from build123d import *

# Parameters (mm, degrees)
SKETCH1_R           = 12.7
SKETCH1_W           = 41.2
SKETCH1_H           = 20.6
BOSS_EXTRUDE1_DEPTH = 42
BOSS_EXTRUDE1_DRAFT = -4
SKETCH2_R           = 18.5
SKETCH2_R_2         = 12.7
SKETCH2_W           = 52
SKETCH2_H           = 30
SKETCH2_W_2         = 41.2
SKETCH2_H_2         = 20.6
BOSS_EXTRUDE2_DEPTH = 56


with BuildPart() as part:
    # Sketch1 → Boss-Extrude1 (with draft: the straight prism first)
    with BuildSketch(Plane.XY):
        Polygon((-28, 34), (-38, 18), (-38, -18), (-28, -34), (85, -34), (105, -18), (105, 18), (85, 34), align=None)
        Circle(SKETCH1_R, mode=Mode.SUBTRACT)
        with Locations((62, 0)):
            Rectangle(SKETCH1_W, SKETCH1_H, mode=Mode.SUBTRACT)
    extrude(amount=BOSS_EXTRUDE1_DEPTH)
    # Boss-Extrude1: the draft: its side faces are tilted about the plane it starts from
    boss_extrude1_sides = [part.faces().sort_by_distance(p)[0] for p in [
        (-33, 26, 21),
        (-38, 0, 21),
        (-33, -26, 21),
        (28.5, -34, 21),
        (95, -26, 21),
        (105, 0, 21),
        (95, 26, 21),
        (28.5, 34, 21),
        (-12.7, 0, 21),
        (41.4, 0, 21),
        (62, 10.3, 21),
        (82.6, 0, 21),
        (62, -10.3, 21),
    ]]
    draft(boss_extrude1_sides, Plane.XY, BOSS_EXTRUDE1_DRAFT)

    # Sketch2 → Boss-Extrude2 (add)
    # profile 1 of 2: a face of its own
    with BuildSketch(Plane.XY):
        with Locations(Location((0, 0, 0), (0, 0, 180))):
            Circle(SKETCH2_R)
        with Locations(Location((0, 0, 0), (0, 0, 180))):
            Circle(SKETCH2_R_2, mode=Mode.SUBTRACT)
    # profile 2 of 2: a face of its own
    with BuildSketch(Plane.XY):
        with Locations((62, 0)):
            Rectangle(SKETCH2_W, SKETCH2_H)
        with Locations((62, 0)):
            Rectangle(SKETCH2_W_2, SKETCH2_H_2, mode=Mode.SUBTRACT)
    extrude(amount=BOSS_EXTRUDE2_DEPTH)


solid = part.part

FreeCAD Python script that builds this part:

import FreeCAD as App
import Part
import Sketcher

V = App.Vector
Q = App.Units.Quantity


def faces_at(feature, points):
    """Names of the faces that lie closest to the given points."""
    faces = feature.Shape.Faces
    near = lambda p: min(range(len(faces)), key=lambda i: faces[i].distToShape(Part.Vertex(*p))[0])
    return sorted({f"Face{near(p) + 1}" for p in points})


def add_polygon(sketch, points):
    """Adds a closed chain of lines whose ends are joined by coincident constraints."""
    first, n = sketch.GeometryCount, len(points)
    for a, b in zip(points, points[1:] + points[:1]):
        sketch.addGeometry(Part.LineSegment(App.Vector(*a, 0), App.Vector(*b, 0)), False)
    for i in range(n):
        sketch.addConstraint(Sketcher.Constraint("Coincident", first + i, 2, first + (i + 1) % n, 1))

doc = App.newDocument("Part")
params = doc.addObject("Spreadsheet::Sheet", "Params")
for row, (alias, value) in enumerate([
    ("sketch1_diameter", "25.4 mm"),
    ("sketch1_width", "113 mm"),
    ("sketch1_height", "36 mm"),
    ("sketch1_width2", "41.2 mm"),
    ("sketch1_height2", "20.6 mm"),
    ("pad1_length", "42 mm"),
    ("draft_angle", "4 deg"),
    ("sketch2_diameter", "37 mm"),
    ("sketch2_diameter2", "25.4 mm"),
    ("sketch2_width", "52 mm"),
    ("sketch2_height", "30 mm"),
    ("sketch2_width2", "41.2 mm"),
    ("pad2_length", "56 mm"),
], start=1):
    params.set(f"A{row}", alias)
    params.set(f"B{row}", "=" + value)
    params.setAlias(f"B{row}", alias)

body = doc.addObject("PartDesign::Body", "Body")

# Sketch on XY plane
sketch1 = body.newObject("Sketcher::SketchObject", "Sketch")
sketch1.AttachmentSupport = (doc.getObject("XY_Plane"), [""])
sketch1.MapMode = "FlatFace"
add_polygon(sketch1, [(-28, 34), (-38, 18), (-38, -18), (-28, -34), (85, -34), (105, -18), (105, 18), (85, 34)])  # lines 0-7
sketch1.addGeometry(Part.Circle(V(0, 0, 0), V(0, 0, 1), 13), False)  # 8
add_polygon(sketch1, [(83, -10), (41, -10), (41, 10), (83, 10)])  # lines 9-12
sketch1.addConstraint([
    Sketcher.Constraint("Vertical", 1),
    Sketcher.Constraint("Horizontal", 3),
    Sketcher.Constraint("Vertical", 5),
    Sketcher.Constraint("Horizontal", 7),
    Sketcher.Constraint("Horizontal", 9),
    Sketcher.Constraint("Vertical", 10),
    Sketcher.Constraint("Horizontal", 11),
    Sketcher.Constraint("Vertical", 12),
    Sketcher.Constraint("Coincident", 8, 3, -1, 1),
    Sketcher.Constraint("Symmetric", 3, 2, 6, 2, -1),
    Sketcher.Constraint("Horizontal", 1, 2, 4, 2),
    Sketcher.Constraint("Horizontal", 0, 2, 5, 2),
    Sketcher.Constraint("Vertical", 2, 2, 7, 2),
    Sketcher.Constraint("Equal", 0, 2),
    Sketcher.Constraint("Diameter", 8, Q("25.4 mm")),
    Sketcher.Constraint("DistanceX", 3, 1, 3, 2, Q("113 mm")),
    Sketcher.Constraint("DistanceY", 1, 2, 1, 1, Q("36 mm")),
    Sketcher.Constraint("DistanceX", 9, 2, 9, 1, Q("41.2 mm")),
    Sketcher.Constraint("DistanceY", 10, 1, 10, 2, Q("20.6 mm")),
    Sketcher.Constraint("DistanceX", 0, 2, -1, 1, Q("38 mm")),
    Sketcher.Constraint("DistanceX", 2, 2, -1, 1, Q("28 mm")),
    Sketcher.Constraint("DistanceY", 2, 2, -1, 1, Q("34 mm")),
    Sketcher.Constraint("DistanceX", -1, 1, 4, 2, Q("105 mm")),
    Sketcher.Constraint("DistanceX", -1, 1, 9, 2, Q("41.4 mm")),
    Sketcher.Constraint("DistanceY", 9, 2, -1, 1, Q("10.3 mm")),
])
sketch1.setExpression("Constraints[26]", "Params.sketch1_diameter")
sketch1.setExpression("Constraints[27]", "Params.sketch1_width")
sketch1.setExpression("Constraints[28]", "Params.sketch1_height")
sketch1.setExpression("Constraints[29]", "Params.sketch1_width2")
sketch1.setExpression("Constraints[30]", "Params.sketch1_height2")
pad1 = body.newObject("PartDesign::Pad", "Pad")
pad1.Profile = sketch1
pad1.setExpression("Length", "Params.pad1_length")
doc.recompute()

draft = body.newObject("PartDesign::Draft", "Draft")
draft.Base = (pad1, faces_at(pad1, [
    (-33, 26, 21),
    (-38, 0, 21),
    (-33, -26, 21),
    (28.5, -34, 21),
    (95, -26, 21),
    (105, 0, 21),
    (95, 26, 21),
    (28.5, 34, 21),
    (-12.7, 0, 21),
    (41.4, 0, 21),
    (62, 10.3, 21),
    (82.6, 0, 21),
    (62, -10.3, 21),
]))
draft.NeutralPlane = (doc.getObject("XY_Plane"), [""])
draft.setExpression("Angle", "Params.draft_angle")
draft.Reversed = True

# Sketch on XY plane
sketch2 = body.newObject("Sketcher::SketchObject", "Sketch001")
sketch2.AttachmentSupport = (doc.getObject("XY_Plane"), [""])
sketch2.MapMode = "FlatFace"
sketch2.addGeometry(Part.Circle(V(0, 0, 0), V(0, 0, 1), 18), False)  # 0
sketch2.addGeometry(Part.Circle(V(0, 0, 0), V(0, 0, 1), 13), False)  # 1
add_polygon(sketch2, [(36, 15), (36, -15), (88, -15), (88, 15)])  # lines 2-5
add_polygon(sketch2, [(83, -10), (41, -10), (41, 10), (83, 10)])  # lines 6-9
sketch2.addConstraint([
    Sketcher.Constraint("Vertical", 2),
    Sketcher.Constraint("Horizontal", 3),
    Sketcher.Constraint("Vertical", 4),
    Sketcher.Constraint("Horizontal", 5),
    Sketcher.Constraint("Horizontal", 6),
    Sketcher.Constraint("Vertical", 7),
    Sketcher.Constraint("Horizontal", 8),
    Sketcher.Constraint("Vertical", 9),
    Sketcher.Constraint("Coincident", 0, 3, -1, 1),
    Sketcher.Constraint("Coincident", 1, 3, -1, 1),
    Sketcher.Constraint("Diameter", 0, Q("37 mm")),
    Sketcher.Constraint("Diameter", 1, Q("25.4 mm")),
    Sketcher.Constraint("DistanceX", 3, 1, 3, 2, Q("52 mm")),
    Sketcher.Constraint("DistanceY", 2, 2, 2, 1, Q("30 mm")),
    Sketcher.Constraint("DistanceX", 6, 2, 6, 1, Q("41.2 mm")),
    Sketcher.Constraint("DistanceY", 7, 1, 7, 2, Q("20.6 mm")),
    Sketcher.Constraint("DistanceX", -1, 1, 2, 2, Q("36 mm")),
    Sketcher.Constraint("DistanceY", 2, 2, -1, 1, Q("15 mm")),
    Sketcher.Constraint("DistanceX", -1, 1, 6, 2, Q("41.4 mm")),
    Sketcher.Constraint("DistanceY", 6, 2, -1, 1, Q("10.3 mm")),
])
sketch2.setExpression("Constraints[18]", "Params.sketch2_diameter")
sketch2.setExpression("Constraints[19]", "Params.sketch2_diameter2")
sketch2.setExpression("Constraints[20]", "Params.sketch2_width")
sketch2.setExpression("Constraints[21]", "Params.sketch2_height")
sketch2.setExpression("Constraints[22]", "Params.sketch2_width2")
pad2 = body.newObject("PartDesign::Pad", "Pad001")
pad2.Profile = sketch2
pad2.setExpression("Length", "Params.pad2_length")

doc.recompute()
